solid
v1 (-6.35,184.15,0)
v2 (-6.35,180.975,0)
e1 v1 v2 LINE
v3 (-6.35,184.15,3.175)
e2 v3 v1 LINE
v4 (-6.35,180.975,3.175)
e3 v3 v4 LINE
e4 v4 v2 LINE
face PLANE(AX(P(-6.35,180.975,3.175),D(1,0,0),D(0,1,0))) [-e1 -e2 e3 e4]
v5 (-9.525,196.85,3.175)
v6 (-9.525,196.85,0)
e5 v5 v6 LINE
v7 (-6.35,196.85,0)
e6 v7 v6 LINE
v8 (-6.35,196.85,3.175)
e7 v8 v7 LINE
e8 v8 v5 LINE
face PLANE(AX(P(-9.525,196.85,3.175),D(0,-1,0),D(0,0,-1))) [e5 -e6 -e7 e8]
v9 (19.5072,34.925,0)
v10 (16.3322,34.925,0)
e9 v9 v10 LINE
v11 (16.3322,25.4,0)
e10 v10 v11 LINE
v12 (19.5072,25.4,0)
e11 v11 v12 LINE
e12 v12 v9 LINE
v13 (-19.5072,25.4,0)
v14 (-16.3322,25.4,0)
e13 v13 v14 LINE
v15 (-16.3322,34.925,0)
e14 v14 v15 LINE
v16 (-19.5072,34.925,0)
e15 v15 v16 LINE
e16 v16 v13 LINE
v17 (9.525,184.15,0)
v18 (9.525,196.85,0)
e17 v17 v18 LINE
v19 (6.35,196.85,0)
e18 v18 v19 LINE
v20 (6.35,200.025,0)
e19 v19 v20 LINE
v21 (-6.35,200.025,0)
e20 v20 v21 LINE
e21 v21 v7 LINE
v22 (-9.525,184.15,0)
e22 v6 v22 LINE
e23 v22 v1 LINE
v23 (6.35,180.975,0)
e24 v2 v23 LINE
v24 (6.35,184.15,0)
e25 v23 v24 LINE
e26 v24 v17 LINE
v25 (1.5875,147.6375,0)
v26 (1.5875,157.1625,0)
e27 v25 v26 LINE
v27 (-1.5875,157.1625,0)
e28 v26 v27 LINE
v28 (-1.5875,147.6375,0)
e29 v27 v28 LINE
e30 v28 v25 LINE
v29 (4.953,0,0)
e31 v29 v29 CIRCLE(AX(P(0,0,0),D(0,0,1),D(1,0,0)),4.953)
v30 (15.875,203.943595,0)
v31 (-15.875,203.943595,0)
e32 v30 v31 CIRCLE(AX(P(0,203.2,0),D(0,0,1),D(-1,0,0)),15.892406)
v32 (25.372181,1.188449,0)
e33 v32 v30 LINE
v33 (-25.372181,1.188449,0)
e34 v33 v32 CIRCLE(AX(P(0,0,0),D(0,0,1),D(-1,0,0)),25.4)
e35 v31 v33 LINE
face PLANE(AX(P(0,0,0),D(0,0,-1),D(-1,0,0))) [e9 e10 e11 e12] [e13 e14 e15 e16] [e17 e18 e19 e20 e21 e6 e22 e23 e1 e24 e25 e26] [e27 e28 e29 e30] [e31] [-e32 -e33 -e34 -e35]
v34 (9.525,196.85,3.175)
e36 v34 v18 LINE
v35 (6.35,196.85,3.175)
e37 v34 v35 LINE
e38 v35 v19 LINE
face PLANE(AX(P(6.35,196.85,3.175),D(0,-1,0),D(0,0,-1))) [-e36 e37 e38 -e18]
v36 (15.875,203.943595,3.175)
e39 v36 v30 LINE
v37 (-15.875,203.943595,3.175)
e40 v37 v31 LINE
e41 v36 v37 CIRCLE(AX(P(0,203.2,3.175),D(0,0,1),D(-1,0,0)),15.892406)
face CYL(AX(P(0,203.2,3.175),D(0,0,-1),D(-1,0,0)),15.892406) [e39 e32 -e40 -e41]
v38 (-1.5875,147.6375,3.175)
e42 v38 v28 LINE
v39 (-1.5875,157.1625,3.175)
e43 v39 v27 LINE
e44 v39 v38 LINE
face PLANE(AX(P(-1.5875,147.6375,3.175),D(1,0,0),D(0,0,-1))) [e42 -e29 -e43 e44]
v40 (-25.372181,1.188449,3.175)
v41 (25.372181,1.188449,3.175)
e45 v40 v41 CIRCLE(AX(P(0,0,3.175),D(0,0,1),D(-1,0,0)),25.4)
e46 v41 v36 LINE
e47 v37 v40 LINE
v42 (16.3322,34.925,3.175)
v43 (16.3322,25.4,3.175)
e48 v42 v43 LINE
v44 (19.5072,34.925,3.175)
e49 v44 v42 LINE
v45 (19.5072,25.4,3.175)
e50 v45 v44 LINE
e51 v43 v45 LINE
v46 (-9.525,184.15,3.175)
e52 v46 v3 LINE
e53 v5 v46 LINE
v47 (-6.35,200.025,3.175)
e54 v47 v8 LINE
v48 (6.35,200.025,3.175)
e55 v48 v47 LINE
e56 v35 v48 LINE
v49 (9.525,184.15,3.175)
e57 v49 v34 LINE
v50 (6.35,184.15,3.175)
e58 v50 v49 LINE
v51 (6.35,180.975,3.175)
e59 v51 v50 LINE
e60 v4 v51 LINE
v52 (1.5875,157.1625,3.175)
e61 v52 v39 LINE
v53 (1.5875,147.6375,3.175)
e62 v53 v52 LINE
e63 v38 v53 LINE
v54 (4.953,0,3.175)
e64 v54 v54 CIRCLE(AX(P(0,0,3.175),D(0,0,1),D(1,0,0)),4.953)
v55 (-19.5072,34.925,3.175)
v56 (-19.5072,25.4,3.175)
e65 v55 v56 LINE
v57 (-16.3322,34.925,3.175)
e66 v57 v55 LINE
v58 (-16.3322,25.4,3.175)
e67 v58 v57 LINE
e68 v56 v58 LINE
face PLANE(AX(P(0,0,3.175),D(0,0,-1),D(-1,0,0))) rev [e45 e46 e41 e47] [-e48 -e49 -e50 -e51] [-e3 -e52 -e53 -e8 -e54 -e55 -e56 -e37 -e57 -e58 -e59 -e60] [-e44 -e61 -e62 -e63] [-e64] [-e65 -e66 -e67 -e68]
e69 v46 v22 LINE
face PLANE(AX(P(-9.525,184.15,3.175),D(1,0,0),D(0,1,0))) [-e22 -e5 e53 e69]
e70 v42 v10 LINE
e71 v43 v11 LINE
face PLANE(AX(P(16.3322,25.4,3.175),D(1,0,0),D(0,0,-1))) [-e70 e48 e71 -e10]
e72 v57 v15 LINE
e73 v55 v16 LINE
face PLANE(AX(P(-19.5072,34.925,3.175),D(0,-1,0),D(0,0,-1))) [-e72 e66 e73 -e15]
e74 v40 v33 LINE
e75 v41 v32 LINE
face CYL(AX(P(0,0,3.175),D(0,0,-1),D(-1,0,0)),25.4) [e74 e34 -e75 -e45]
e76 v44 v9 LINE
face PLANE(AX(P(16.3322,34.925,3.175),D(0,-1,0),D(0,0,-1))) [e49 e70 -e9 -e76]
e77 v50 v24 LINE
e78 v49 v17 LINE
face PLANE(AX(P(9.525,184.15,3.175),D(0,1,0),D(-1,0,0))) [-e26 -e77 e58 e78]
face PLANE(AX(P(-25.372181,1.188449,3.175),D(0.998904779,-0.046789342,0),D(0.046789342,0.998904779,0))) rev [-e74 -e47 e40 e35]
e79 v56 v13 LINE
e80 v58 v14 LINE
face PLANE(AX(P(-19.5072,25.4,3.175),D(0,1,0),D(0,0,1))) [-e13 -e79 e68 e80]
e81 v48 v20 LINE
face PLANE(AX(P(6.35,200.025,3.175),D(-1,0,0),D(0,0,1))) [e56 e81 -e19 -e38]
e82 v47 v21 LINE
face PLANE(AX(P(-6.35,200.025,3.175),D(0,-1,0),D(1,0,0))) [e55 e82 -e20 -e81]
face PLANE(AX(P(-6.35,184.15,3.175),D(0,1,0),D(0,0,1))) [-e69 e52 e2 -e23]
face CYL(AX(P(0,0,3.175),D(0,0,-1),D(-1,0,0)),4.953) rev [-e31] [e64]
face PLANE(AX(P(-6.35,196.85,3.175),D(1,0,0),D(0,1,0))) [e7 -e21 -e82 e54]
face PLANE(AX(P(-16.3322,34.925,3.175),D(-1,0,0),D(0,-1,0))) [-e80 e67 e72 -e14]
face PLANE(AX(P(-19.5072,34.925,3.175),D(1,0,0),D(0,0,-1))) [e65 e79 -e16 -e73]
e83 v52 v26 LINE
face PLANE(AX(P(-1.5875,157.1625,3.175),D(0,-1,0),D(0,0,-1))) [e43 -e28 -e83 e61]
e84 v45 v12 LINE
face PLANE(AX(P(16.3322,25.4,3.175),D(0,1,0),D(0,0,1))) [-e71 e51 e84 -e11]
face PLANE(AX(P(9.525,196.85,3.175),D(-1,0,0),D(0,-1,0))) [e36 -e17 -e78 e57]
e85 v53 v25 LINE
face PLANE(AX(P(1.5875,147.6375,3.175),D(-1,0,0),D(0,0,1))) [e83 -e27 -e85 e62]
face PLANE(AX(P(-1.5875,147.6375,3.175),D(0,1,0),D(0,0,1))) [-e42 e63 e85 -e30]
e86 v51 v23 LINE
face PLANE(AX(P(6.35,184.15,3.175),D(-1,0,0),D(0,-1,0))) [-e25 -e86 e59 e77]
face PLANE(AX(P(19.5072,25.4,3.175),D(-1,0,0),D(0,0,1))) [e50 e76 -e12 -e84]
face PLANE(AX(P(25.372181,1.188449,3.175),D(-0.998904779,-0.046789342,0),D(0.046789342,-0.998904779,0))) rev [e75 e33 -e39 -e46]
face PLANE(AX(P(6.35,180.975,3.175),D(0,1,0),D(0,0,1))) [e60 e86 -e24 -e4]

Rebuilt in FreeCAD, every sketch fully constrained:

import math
import FreeCAD as App
import Part
import Sketcher
from FreeCAD import Vector
Q = App.Units.Quantity


def add_polygon(sketch, points):
    """Adds a closed chain of lines whose ends are joined by coincident constraints."""
    first, n = sketch.GeometryCount, len(points)
    for a, b in zip(points, points[1:] + points[:1]):
        sketch.addGeometry(Part.LineSegment(App.Vector(*a, 0), App.Vector(*b, 0)), False)
    for i in range(n):
        sketch.addConstraint(Sketcher.Constraint("Coincident", first + i, 2, first + (i + 1) % n, 1))

doc = App.newDocument("Part")
body = doc.addObject("PartDesign::Body", "Body")

# Sketch on XY plane
sketch1 = body.newObject("Sketcher::SketchObject", "Sketch")
sketch1.AttachmentSupport = (doc.getObject("XY_Plane"), [""])
sketch1.MapMode = "FlatFace"
sketch1.addGeometry(Part.LineSegment(Vector(-15.875, 203.943595, 0), Vector(-25.372181, 1.188449, 0)), False)  # 0
sketch1.addGeometry(Part.ArcOfCircle(Part.Circle(Vector(0, 0, 0), Vector(0, 0, 1), 25.4), math.radians(177.318189), math.radians(362.681811)), False)  # 1
sketch1.addGeometry(Part.LineSegment(Vector(25.372181, 1.188449, 0), Vector(15.875, 203.943595, 0)), False)  # 2
sketch1.addGeometry(Part.ArcOfCircle(Part.Circle(Vector(0, 203.2, 0), Vector(0, 0, 1), 15.892406), math.radians(2.681811), math.radians(177.318189)), False)  # 3
add_polygon(sketch1, [(16.3322, 25.4), (16.3322, 34.925), (19.5072, 34.925), (19.5072, 25.4)])  # lines 4-7
sketch1.addGeometry(Part.Circle(Vector(0, 0, 0), Vector(0, 0, 1), 4.953), False)  # 8
add_polygon(sketch1, [(-19.5072, 25.4), (-19.5072, 34.925), (-16.3322, 34.925), (-16.3322, 25.4)])  # lines 9-12
add_polygon(sketch1, [(-1.5875, 147.6375), (-1.5875, 157.1625), (1.5875, 157.1625), (1.5875, 147.6375)])  # lines 13-16
add_polygon(sketch1, [(-6.35, 200.025), (6.35, 200.025), (6.35, 196.85), (9.525, 196.85), (9.525, 184.15), (6.35, 184.15), (6.35, 180.975), (-6.35, 180.975), (-6.35, 184.15), (-9.525, 184.15), (-9.525, 196.85), (-6.35, 196.85)])  # lines 17-28
sketch1.addConstraint(Sketcher.Constraint("Tangent", 0, 2, 1, 1))
sketch1.addConstraint(Sketcher.Constraint("Tangent", 1, 2, 2, 1))
sketch1.addConstraint(Sketcher.Constraint("Tangent", 2, 2, 3, 1))
sketch1.addConstraint(Sketcher.Constraint("Tangent", 3, 2, 0, 1))
sketch1.addConstraint(Sketcher.Constraint("Vertical", 4))
sketch1.addConstraint(Sketcher.Constraint("Horizontal", 5))
sketch1.addConstraint(Sketcher.Constraint("Vertical", 6))
sketch1.addConstraint(Sketcher.Constraint("Horizontal", 7))
sketch1.addConstraint(Sketcher.Constraint("Vertical", 9))
sketch1.addConstraint(Sketcher.Constraint("Horizontal", 10))
sketch1.addConstraint(Sketcher.Constraint("Vertical", 11))
sketch1.addConstraint(Sketcher.Constraint("Horizontal", 12))
sketch1.addConstraint(Sketcher.Constraint("Vertical", 13))
sketch1.addConstraint(Sketcher.Constraint("Horizontal", 14))
sketch1.addConstraint(Sketcher.Constraint("Vertical", 15))
sketch1.addConstraint(Sketcher.Constraint("Horizontal", 16))
sketch1.addConstraint(Sketcher.Constraint("Horizontal", 17))
sketch1.addConstraint(Sketcher.Constraint("Vertical", 18))
sketch1.addConstraint(Sketcher.Constraint("Horizontal", 19))
sketch1.addConstraint(Sketcher.Constraint("Vertical", 20))
sketch1.addConstraint(Sketcher.Constraint("Horizontal", 21))
sketch1.addConstraint(Sketcher.Constraint("Vertical", 22))
sketch1.addConstraint(Sketcher.Constraint("Horizontal", 23))
sketch1.addConstraint(Sketcher.Constraint("Vertical", 24))
sketch1.addConstraint(Sketcher.Constraint("Horizontal", 25))
sketch1.addConstraint(Sketcher.Constraint("Vertical", 26))
sketch1.addConstraint(Sketcher.Constraint("Horizontal", 27))
sketch1.addConstraint(Sketcher.Constraint("Vertical", 28))
sketch1.addConstraint(Sketcher.Constraint("Coincident", 1, 3, -1, 1))
sketch1.addConstraint(Sketcher.Constraint("Coincident", 8, 3, -1, 1))
sketch1.addConstraint(Sketcher.Constraint("Symmetric", 5, 2, 9, 2, -2))
sketch1.addConstraint(Sketcher.Constraint("Symmetric", 7, 2, 11, 2, -2))
sketch1.addConstraint(Sketcher.Constraint("Symmetric", 21, 2, 24, 2, -2))
sketch1.addConstraint(Sketcher.Constraint("Symmetric", 19, 2, 26, 2, -2))
sketch1.addConstraint(Sketcher.Constraint("PointOnObject", 3, 3, -2))
sketch1.addConstraint(Sketcher.Constraint("Vertical", 18, 2, 21, 2))
sketch1.addConstraint(Sketcher.Constraint("Vertical", 24, 2, 27, 2))
sketch1.addConstraint(Sketcher.Constraint("Equal", 12, 14))
sketch1.addConstraint(Sketcher.Constraint("Equal", 16, 19))
sketch1.addConstraint(Sketcher.Constraint("Equal", 11, 13))
sketch1.addConstraint(Sketcher.Constraint("Equal", 27, 18))
sketch1.addConstraint(Sketcher.Constraint("Equal", 23, 20))
sketch1.addConstraint(Sketcher.Constraint("Equal", 18, 22))
sketch1.addConstraint(Sketcher.Constraint("Radius", 1, Q("1 in")))
sketch1.addConstraint(Sketcher.Constraint("Diameter", 8, Q("0.39 in")))
sketch1.addConstraint(Sketcher.Constraint("DistanceX", 17, 1, 17, 2, Q("0.5 in")))
sketch1.addConstraint(Sketcher.Constraint("DistanceY", -1, 1, 3, 3, Q("8 in")))
sketch1.addConstraint(Sketcher.Constraint("DistanceY", -1, 1, 6, 2, Q("1 in")))
sketch1.addConstraint(Sketcher.Constraint("DistanceX", 3, 2, 19, 2, Q("1 in")))
sketch1.addConstraint(Sketcher.Constraint("DistanceX", 5, 1, 5, 2, Q("0.125 in")))
sketch1.addConstraint(Sketcher.Constraint("DistanceY", 4, 1, 4, 2, Q("0.375 in")))
sketch1.addConstraint(Sketcher.Constraint("DistanceY", -1, 1, 18, 2, Q("7.75 in")))
sketch1.addConstraint(Sketcher.Constraint("DistanceX", -1, 1, 4, 2, Q("0.643 in")))
sketch1.addConstraint(Sketcher.Constraint("DistanceX", 13, 2, -1, 1, Q("0.0625 in")))
sketch1.addConstraint(Sketcher.Constraint("DistanceY", -1, 1, 13, 2, Q("6.1875 in")))
pad1 = body.newObject("PartDesign::Pad", "Pad")
pad1.Profile = sketch1
pad1.Length = Q("0.125 in")

doc.recompute()
